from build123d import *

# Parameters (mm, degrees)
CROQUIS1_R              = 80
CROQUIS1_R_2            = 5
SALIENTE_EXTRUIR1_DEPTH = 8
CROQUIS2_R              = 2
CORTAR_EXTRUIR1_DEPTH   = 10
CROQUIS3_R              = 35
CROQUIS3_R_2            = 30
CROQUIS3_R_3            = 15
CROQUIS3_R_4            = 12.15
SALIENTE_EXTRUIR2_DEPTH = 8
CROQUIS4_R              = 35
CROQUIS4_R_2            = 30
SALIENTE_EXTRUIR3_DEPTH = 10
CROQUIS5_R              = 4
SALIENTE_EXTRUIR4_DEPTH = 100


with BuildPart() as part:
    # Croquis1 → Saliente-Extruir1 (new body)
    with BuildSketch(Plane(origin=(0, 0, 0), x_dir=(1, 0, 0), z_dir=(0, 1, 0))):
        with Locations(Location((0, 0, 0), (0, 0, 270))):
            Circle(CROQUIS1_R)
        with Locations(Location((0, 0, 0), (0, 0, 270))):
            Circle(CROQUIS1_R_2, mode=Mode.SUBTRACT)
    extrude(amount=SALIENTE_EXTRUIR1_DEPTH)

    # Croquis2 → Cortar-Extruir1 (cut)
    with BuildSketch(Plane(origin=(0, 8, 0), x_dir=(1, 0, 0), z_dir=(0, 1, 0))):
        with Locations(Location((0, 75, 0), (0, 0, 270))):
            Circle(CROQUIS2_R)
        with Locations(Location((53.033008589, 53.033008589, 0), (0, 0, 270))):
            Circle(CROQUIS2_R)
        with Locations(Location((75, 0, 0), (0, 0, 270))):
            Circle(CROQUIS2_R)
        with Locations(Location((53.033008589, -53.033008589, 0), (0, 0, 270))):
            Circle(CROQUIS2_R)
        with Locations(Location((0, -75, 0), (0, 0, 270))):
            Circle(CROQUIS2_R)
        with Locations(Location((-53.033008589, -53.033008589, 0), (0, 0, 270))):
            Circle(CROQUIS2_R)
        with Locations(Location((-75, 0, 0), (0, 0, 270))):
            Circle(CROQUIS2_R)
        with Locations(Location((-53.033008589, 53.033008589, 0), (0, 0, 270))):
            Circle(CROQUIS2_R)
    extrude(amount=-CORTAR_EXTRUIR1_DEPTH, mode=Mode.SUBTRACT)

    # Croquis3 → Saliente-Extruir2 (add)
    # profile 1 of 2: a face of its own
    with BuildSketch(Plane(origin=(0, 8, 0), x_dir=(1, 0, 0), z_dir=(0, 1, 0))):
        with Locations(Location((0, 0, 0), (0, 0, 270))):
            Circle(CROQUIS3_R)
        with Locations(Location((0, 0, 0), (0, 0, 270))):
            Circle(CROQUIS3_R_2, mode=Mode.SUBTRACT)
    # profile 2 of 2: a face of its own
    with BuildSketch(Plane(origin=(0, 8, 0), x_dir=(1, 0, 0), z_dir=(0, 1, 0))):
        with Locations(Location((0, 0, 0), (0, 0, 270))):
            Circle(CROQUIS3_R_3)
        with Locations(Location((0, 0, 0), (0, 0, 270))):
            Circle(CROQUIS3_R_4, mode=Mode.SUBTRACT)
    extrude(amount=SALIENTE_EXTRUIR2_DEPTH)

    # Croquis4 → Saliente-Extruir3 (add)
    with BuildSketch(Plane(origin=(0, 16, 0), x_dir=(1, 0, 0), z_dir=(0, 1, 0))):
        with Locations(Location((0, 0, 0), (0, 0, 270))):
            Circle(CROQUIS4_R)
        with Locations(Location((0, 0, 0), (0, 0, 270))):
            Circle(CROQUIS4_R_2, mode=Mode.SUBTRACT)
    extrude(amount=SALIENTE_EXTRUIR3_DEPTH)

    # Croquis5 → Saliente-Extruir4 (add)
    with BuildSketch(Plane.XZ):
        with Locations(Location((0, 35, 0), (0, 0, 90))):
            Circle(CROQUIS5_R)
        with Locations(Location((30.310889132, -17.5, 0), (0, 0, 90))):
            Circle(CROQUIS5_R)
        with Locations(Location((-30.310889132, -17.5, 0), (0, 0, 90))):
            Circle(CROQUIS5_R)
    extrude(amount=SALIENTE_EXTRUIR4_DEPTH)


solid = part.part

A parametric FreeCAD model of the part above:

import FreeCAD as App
import Part
import Sketcher
from FreeCAD import Vector
Q = App.Units.Quantity

doc = App.newDocument("Part")
body = doc.addObject("PartDesign::Body", "Body")

# Sketch on XZ plane
sketch1 = body.newObject("Sketcher::SketchObject", "Sketch")
sketch1.AttachmentSupport = (doc.getObject("XZ_Plane"), [""])
sketch1.MapMode = "FlatFace"
sketch1.addGeometry(Part.Circle(Vector(0, 0, 0), Vector(0, 0, 1), 80), False)
sketch1.addGeometry(Part.Circle(Vector(0, 0, 0), Vector(0, 0, 1), 5), False)
sketch1.addConstraint(Sketcher.Constraint("Coincident", 0, 3, -1, 1))
sketch1.addConstraint(Sketcher.Constraint("Coincident", 1, 3, -1, 1))
sketch1.addConstraint(Sketcher.Constraint("Diameter", 0, Q("160 mm")))
sketch1.addConstraint(Sketcher.Constraint("Diameter", 1, Q("10 mm")))
pad1 = body.newObject("PartDesign::Pad", "Pad")
pad1.Profile = sketch1
pad1.Length = 8
pad1.Reversed = True

# Sketch on XZ plane
sketch2 = body.newObject("Sketcher::SketchObject", "Sketch001")
sketch2.AttachmentSupport = (doc.getObject("XZ_Plane"), [""])
sketch2.MapMode = "FlatFace"
sketch2.AttachmentOffset = App.Placement(Vector(0, 0, -8), App.Rotation())
sketch2.addGeometry(Part.Circle(Vector(0, -75, 0), Vector(0, 0, 1), 2), False)
sketch2.addGeometry(Part.Circle(Vector(53.033009, -53.033009, 0), Vector(0, 0, 1), 2), False)
sketch2.addGeometry(Part.Circle(Vector(75, 0, 0), Vector(0, 0, 1), 2), False)
sketch2.addGeometry(Part.Circle(Vector(53.033009, 53.033009, 0), Vector(0, 0, 1), 2), False)
sketch2.addGeometry(Part.Circle(Vector(0, 75, 0), Vector(0, 0, 1), 2), False)
sketch2.addGeometry(Part.Circle(Vector(-53.033009, 53.033009, 0), Vector(0, 0, 1), 2), False)
sketch2.addGeometry(Part.Circle(Vector(-75, 0, 0), Vector(0, 0, 1), 2), False)
sketch2.addGeometry(Part.Circle(Vector(-53.033009, -53.033009, 0), Vector(0, 0, 1), 2), False)
sketch2.addConstraint(Sketcher.Constraint("Equal", 0, 1))
sketch2.addConstraint(Sketcher.Constraint("Equal", 1, 2))
sketch2.addConstraint(Sketcher.Constraint("Equal", 2, 3))
sketch2.addConstraint(Sketcher.Constraint("Equal", 3, 4))
sketch2.addConstraint(Sketcher.Constraint("Equal", 4, 5))
sketch2.addConstraint(Sketcher.Constraint("Equal", 5, 6))
sketch2.addConstraint(Sketcher.Constraint("Equal", 6, 7))
sketch2.addConstraint(Sketcher.Constraint("Symmetric", 0, 3, 4, 3, -1, 1))
sketch2.addConstraint(Sketcher.Constraint("Symmetric", 1, 3, 5, 3, -1, 1))
sketch2.addConstraint(Sketcher.Constraint("Symmetric", 2, 3, 6, 3, -1, 1))
sketch2.addConstraint(Sketcher.Constraint("Symmetric", 3, 3, 7, 3, -1, 1))
sketch2.addConstraint(Sketcher.Constraint("Symmetric", 3, 3, 5, 3, -2))
sketch2.addConstraint(Sketcher.Constraint("PointOnObject", 0, 3, -2))
sketch2.addConstraint(Sketcher.Constraint("PointOnObject", 2, 3, -1))
sketch2.addConstraint(Sketcher.Constraint("Diameter", 0, Q("4 mm")))
sketch2.addConstraint(Sketcher.Constraint("DistanceY", 0, 3, -1, 1, Q("75 mm")))
sketch2.addConstraint(Sketcher.Constraint("DistanceX", -1, 1, 2, 3, Q("75 mm")))
sketch2.addConstraint(Sketcher.Constraint("DistanceX", -1, 1, 1, 3, Q("53.033009 mm")))
sketch2.addConstraint(Sketcher.Constraint("DistanceY", 1, 3, -1, 1, Q("53.033009 mm")))
pocket1 = body.newObject("PartDesign::Pocket", "Pocket")
pocket1.Profile = sketch2
pocket1.Length = 10
pocket1.Reversed = True

# Sketch on XZ plane
sketch3 = body.newObject("Sketcher::SketchObject", "Sketch002")
sketch3.AttachmentSupport = (doc.getObject("XZ_Plane"), [""])
sketch3.MapMode = "FlatFace"
sketch3.AttachmentOffset = App.Placement(Vector(0, 0, -8), App.Rotation())
sketch3.addGeometry(Part.Circle(Vector(0, 0, 0), Vector(0, 0, 1), 35), False)
sketch3.addGeometry(Part.Circle(Vector(0, 0, 0), Vector(0, 0, 1), 30), False)
sketch3.addGeometry(Part.Circle(Vector(0, 0, 0), Vector(0, 0, 1), 15), False)
sketch3.addGeometry(Part.Circle(Vector(0, 0, 0), Vector(0, 0, 1), 12.15), False)
sketch3.addConstraint(Sketcher.Constraint("Coincident", 0, 3, -1, 1))
sketch3.addConstraint(Sketcher.Constraint("Coincident", 1, 3, -1, 1))
sketch3.addConstraint(Sketcher.Constraint("Coincident", 2, 3, -1, 1))
sketch3.addConstraint(Sketcher.Constraint("Coincident", 3, 3, -1, 1))
sketch3.addConstraint(Sketcher.Constraint("Diameter", 0, Q("70 mm")))
sketch3.addConstraint(Sketcher.Constraint("Diameter", 1, Q("60 mm")))
sketch3.addConstraint(Sketcher.Constraint("Diameter", 2, Q("30 mm")))
sketch3.addConstraint(Sketcher.Constraint("Diameter", 3, Q("24.3 mm")))
pad2 = body.newObject("PartDesign::Pad", "Pad001")
pad2.Profile = sketch3
pad2.Length = 8
pad2.Reversed = True

# Sketch on XZ plane
sketch4 = body.newObject("Sketcher::SketchObject", "Sketch003")
sketch4.AttachmentSupport = (doc.getObject("XZ_Plane"), [""])
sketch4.MapMode = "FlatFace"
sketch4.AttachmentOffset = App.Placement(Vector(0, 0, -16), App.Rotation())
sketch4.addGeometry(Part.Circle(Vector(0, 0, 0), Vector(0, 0, 1), 35), False)
sketch4.addGeometry(Part.Circle(Vector(0, 0, 0), Vector(0, 0, 1), 30), False)
sketch4.addConstraint(Sketcher.Constraint("Coincident", 0, 3, -1, 1))
sketch4.addConstraint(Sketcher.Constraint("Coincident", 1, 3, -1, 1))
sketch4.addConstraint(Sketcher.Constraint("Diameter", 0, Q("70 mm")))
sketch4.addConstraint(Sketcher.Constraint("Diameter", 1, Q("60 mm")))
pad3 = body.newObject("PartDesign::Pad", "Pad002")
pad3.Profile = sketch4
pad3.Length = 10
pad3.Reversed = True

# Sketch on XZ plane
sketch5 = body.newObject("Sketcher::SketchObject", "Sketch004")
sketch5.AttachmentSupport = (doc.getObject("XZ_Plane"), [""])
sketch5.MapMode = "FlatFace"
sketch5.addGeometry(Part.Circle(Vector(0, 35, 0), Vector(0, 0, 1), 4), False)
sketch5.addGeometry(Part.Circle(Vector(30.310889, -17.5, 0), Vector(0, 0, 1), 4), False)
sketch5.addGeometry(Part.Circle(Vector(-30.310889, -17.5, 0), Vector(0, 0, 1), 4), False)
sketch5.addConstraint(Sketcher.Constraint("Equal", 0, 1))
sketch5.addConstraint(Sketcher.Constraint("Equal", 1, 2))
sketch5.addConstraint(Sketcher.Constraint("Symmetric", 1, 3, 2, 3, -2))
sketch5.addConstraint(Sketcher.Constraint("PointOnObject", 0, 3, -2))
sketch5.addConstraint(Sketcher.Constraint("Diameter", 0, Q("8 mm")))
sketch5.addConstraint(Sketcher.Constraint("DistanceY", -1, 1, 0, 3, Q("35 mm")))
sketch5.addConstraint(Sketcher.Constraint("DistanceY", 1, 3, -1, 1, Q("17.5 mm")))
sketch5.addConstraint(Sketcher.Constraint("DistanceX", -1, 1, 1, 3, Q("30.310889 mm")))
pad4 = body.newObject("PartDesign::Pad", "Pad003")
pad4.Profile = sketch5
pad4.Length = 100

doc.recompute()
